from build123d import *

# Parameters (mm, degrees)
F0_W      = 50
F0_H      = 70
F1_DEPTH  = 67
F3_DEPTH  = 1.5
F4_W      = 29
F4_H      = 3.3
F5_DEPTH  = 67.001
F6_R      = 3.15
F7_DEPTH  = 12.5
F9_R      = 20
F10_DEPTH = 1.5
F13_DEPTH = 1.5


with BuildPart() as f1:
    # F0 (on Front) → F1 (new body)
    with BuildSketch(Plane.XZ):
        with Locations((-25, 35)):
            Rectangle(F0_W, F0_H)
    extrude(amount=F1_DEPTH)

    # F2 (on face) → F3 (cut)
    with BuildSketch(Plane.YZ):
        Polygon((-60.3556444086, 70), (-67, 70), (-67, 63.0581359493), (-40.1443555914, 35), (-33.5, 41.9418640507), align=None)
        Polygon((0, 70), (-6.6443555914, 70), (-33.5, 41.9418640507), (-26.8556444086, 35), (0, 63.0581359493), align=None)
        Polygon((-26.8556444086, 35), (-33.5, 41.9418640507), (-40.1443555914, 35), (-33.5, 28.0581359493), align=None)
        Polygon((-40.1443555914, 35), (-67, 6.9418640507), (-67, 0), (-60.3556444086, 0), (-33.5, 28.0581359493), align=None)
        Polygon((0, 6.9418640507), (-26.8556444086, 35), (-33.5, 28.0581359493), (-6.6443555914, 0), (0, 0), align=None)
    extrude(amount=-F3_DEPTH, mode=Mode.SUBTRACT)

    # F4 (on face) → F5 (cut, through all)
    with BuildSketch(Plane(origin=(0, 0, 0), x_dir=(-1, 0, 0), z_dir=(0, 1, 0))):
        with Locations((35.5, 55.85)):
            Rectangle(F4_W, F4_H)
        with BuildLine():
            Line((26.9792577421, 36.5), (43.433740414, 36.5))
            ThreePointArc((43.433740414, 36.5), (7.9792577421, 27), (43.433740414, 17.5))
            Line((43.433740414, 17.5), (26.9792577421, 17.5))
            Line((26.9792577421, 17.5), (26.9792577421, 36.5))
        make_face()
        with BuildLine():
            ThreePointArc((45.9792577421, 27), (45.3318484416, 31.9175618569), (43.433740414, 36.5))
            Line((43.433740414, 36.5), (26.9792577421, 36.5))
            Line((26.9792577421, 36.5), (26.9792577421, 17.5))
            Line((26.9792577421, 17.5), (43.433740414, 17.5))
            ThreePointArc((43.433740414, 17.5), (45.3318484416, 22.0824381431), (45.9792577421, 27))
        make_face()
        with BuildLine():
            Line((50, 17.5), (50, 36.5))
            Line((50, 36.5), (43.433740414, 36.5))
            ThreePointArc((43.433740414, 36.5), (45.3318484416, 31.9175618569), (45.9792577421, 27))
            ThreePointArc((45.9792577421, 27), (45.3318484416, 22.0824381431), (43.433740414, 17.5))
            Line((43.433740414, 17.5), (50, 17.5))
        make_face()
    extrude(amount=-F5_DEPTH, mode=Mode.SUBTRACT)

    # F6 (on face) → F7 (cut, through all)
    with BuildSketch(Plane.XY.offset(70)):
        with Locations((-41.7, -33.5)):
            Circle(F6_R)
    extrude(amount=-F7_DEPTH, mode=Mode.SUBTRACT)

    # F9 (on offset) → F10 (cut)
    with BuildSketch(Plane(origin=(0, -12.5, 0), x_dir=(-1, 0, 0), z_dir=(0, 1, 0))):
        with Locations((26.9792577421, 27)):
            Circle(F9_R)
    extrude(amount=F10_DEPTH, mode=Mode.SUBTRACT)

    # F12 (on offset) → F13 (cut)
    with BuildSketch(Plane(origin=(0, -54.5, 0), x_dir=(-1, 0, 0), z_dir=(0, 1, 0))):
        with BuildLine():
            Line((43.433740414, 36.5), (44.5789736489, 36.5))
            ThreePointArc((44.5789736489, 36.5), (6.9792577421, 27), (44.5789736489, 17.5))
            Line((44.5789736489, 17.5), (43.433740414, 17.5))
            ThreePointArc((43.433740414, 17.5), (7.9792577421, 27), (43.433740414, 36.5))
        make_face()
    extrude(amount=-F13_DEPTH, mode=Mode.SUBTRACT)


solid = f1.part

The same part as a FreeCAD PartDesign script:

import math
import FreeCAD as App
import Part
import Sketcher
from FreeCAD import Vector
Q = App.Units.Quantity

doc = App.newDocument("Part")
params = doc.addObject("Spreadsheet::Sheet", "Params")
for row, (alias, value) in enumerate([
    ("sketch1_width", "50 mm"),
    ("sketch1_height", "70 mm"),
    ("pad1_length", "67 mm"),
    ("pocket1_length", "1.5 mm"),
    ("sketch3_radius", "19 mm"),
    ("sketch3_width", "29 mm"),
    ("sketch3_height", "19 mm"),
    ("sketch3_height2", "3.3 mm"),
    ("sketch4_diameter", "6.3 mm"),
    ("pocket3_length", "12.5 mm"),
    ("sketch5_diameter", "40 mm"),
    ("pocket4_length", "1.5 mm"),
    ("sketch6_radius", "20 mm"),
    ("sketch6_radius2", "19 mm"),
    ("pocket5_length", "1.5 mm"),
], start=1):
    params.set(f"A{row}", alias)
    params.set(f"B{row}", "=" + value)
    params.setAlias(f"B{row}", alias)

body = doc.addObject("PartDesign::Body", "Body")

sketch1 = doc.addObject("Sketcher::SketchObject", "Sketch")
body.addObject(sketch1)
sketch1.AttachmentSupport = (doc.XZ_Plane, [""])
sketch1.MapMode = "FlatFace"
sketch1.addGeometry(Part.LineSegment(Vector(-50, 70, 0), Vector(-50, 0, 0)), False)
sketch1.addGeometry(Part.LineSegment(Vector(-50, 0, 0), Vector(0, 0, 0)), False)
sketch1.addGeometry(Part.LineSegment(Vector(0, 0, 0), Vector(0, 70, 0)), False)
sketch1.addGeometry(Part.LineSegment(Vector(0, 70, 0), Vector(-50, 70, 0)), False)
sketch1.addConstraint(Sketcher.Constraint("Coincident", 0, 2, 1, 1))
sketch1.addConstraint(Sketcher.Constraint("Coincident", 1, 2, 2, 1))
sketch1.addConstraint(Sketcher.Constraint("Coincident", 2, 2, 3, 1))
sketch1.addConstraint(Sketcher.Constraint("Coincident", 3, 2, 0, 1))
sketch1.addConstraint(Sketcher.Constraint("Vertical", 0))
sketch1.addConstraint(Sketcher.Constraint("Horizontal", 1))
sketch1.addConstraint(Sketcher.Constraint("Vertical", 2))
sketch1.addConstraint(Sketcher.Constraint("Horizontal", 3))
sketch1.addConstraint(Sketcher.Constraint("Coincident", 1, 2, -1, 1))
sketch1.addConstraint(Sketcher.Constraint("DistanceX", 1, 1, 1, 2, Q("50 mm")))
sketch1.addConstraint(Sketcher.Constraint("DistanceY", 0, 2, 0, 1, Q("70 mm")))
sketch1.setExpression("Constraints[9]", "Params.sketch1_width")
sketch1.setExpression("Constraints[10]", "Params.sketch1_height")
pad1 = doc.addObject("PartDesign::Pad", "Pad")
body.addObject(pad1)
pad1.Profile = sketch1
pad1.setExpression("Length", "Params.pad1_length")

sketch2 = doc.addObject("Sketcher::SketchObject", "Sketch001")
body.addObject(sketch2)
sketch2.AttachmentSupport = (doc.YZ_Plane, [""])
sketch2.MapMode = "FlatFace"
sketch2.addGeometry(Part.LineSegment(Vector(-60, 70, 0), Vector(-67, 70, 0)), False)
sketch2.addGeometry(Part.LineSegment(Vector(-67, 70, 0), Vector(-67, 63, 0)), False)
sketch2.addGeometry(Part.LineSegment(Vector(-67, 63, 0), Vector(-40, 35, 0)), False)
sketch2.addGeometry(Part.LineSegment(Vector(-40, 35, 0), Vector(-67, 7, 0)), False)
sketch2.addGeometry(Part.LineSegment(Vector(-67, 7, 0), Vector(-67, 0, 0)), False)
sketch2.addGeometry(Part.LineSegment(Vector(-67, 0, 0), Vector(-60, 0, 0)), False)
sketch2.addGeometry(Part.LineSegment(Vector(-60, 0, 0), Vector(-34, 28, 0)), False)
sketch2.addGeometry(Part.LineSegment(Vector(-34, 28, 0), Vector(-7, 0, 0)), False)
sketch2.addGeometry(Part.LineSegment(Vector(-7, 0, 0), Vector(0, 0, 0)), False)
sketch2.addGeometry(Part.LineSegment(Vector(0, 0, 0), Vector(0, 7, 0)), False)
sketch2.addGeometry(Part.LineSegment(Vector(0, 7, 0), Vector(-27, 35, 0)), False)
sketch2.addGeometry(Part.LineSegment(Vector(-27, 35, 0), Vector(0, 63, 0)), False)
sketch2.addGeometry(Part.LineSegment(Vector(0, 63, 0), Vector(0, 70, 0)), False)
sketch2.addGeometry(Part.LineSegment(Vector(0, 70, 0), Vector(-7, 70, 0)), False)
sketch2.addGeometry(Part.LineSegment(Vector(-7, 70, 0), Vector(-34, 42, 0)), False)
sketch2.addGeometry(Part.LineSegment(Vector(-34, 42, 0), Vector(-60, 70, 0)), False)
sketch2.addConstraint(Sketcher.Constraint("Coincident", 0, 2, 1, 1))
sketch2.addConstraint(Sketcher.Constraint("Coincident", 1, 2, 2, 1))
sketch2.addConstraint(Sketcher.Constraint("Coincident", 2, 2, 3, 1))
sketch2.addConstraint(Sketcher.Constraint("Coincident", 3, 2, 4, 1))
sketch2.addConstraint(Sketcher.Constraint("Coincident", 4, 2, 5, 1))
sketch2.addConstraint(Sketcher.Constraint("Coincident", 5, 2, 6, 1))
sketch2.addConstraint(Sketcher.Constraint("Coincident", 6, 2, 7, 1))
sketch2.addConstraint(Sketcher.Constraint("Coincident", 7, 2, 8, 1))
sketch2.addConstraint(Sketcher.Constraint("Coincident", 8, 2, 9, 1))
sketch2.addConstraint(Sketcher.Constraint("Coincident", 9, 2, 10, 1))
sketch2.addConstraint(Sketcher.Constraint("Coincident", 10, 2, 11, 1))
sketch2.addConstraint(Sketcher.Constraint("Coincident", 11, 2, 12, 1))
sketch2.addConstraint(Sketcher.Constraint("Coincident", 12, 2, 13, 1))
sketch2.addConstraint(Sketcher.Constraint("Coincident", 13, 2, 14, 1))
sketch2.addConstraint(Sketcher.Constraint("Coincident", 14, 2, 15, 1))
sketch2.addConstraint(Sketcher.Constraint("Coincident", 15, 2, 0, 1))
sketch2.addConstraint(Sketcher.Constraint("Horizontal", 0))
sketch2.addConstraint(Sketcher.Constraint("Vertical", 1))
sketch2.addConstraint(Sketcher.Constraint("Vertical", 4))
sketch2.addConstraint(Sketcher.Constraint("Horizontal", 5))
sketch2.addConstraint(Sketcher.Constraint("Horizontal", 8))
sketch2.addConstraint(Sketcher.Constraint("Vertical", 9))
sketch2.addConstraint(Sketcher.Constraint("Vertical", 12))
sketch2.addConstraint(Sketcher.Constraint("Horizontal", 13))
sketch2.addConstraint(Sketcher.Constraint("Coincident", 8, 2, -1, 1))
sketch2.addConstraint(Sketcher.Constraint("PointOnObject", 4, 2, -1))
sketch2.addConstraint(Sketcher.Constraint("PointOnObject", 11, 2, -2))
sketch2.addConstraint(Sketcher.Constraint("Parallel", 3, 6))
sketch2.addConstraint(Sketcher.Constraint("Parallel", 2, 7))
sketch2.addConstraint(Sketcher.Constraint("Parallel", 7, 10))
sketch2.addConstraint(Sketcher.Constraint("Parallel", 6, 11))
sketch2.addConstraint(Sketcher.Constraint("Parallel", 11, 14))
sketch2.addConstraint(Sketcher.Constraint("Parallel", 10, 15))
sketch2.addConstraint(Sketcher.Constraint("Horizontal", 3, 2, 9, 2))
sketch2.addConstraint(Sketcher.Constraint("Horizontal", 2, 2, 10, 2))
sketch2.addConstraint(Sketcher.Constraint("Horizontal", 1, 2, 11, 2))
sketch2.addConstraint(Sketcher.Constraint("Horizontal", 0, 2, 12, 2))
sketch2.addConstraint(Sketcher.Constraint("Vertical", 1, 2, 3, 2))
sketch2.addConstraint(Sketcher.Constraint("Vertical", 7, 2, 13, 2))
sketch2.addConstraint(Sketcher.Constraint("Vertical", 6, 2, 14, 2))
sketch2.addConstraint(Sketcher.Constraint("Equal", 5, 8))
sketch2.addConstraint(Sketcher.Constraint("Equal", 1, 4))
sketch2.addConstraint(Sketcher.Constraint("Equal", 3, 6))
sketch2.addConstraint(Sketcher.Constraint("DistanceX", 0, 2, -1, 1, Q("67 mm")))
sketch2.addConstraint(Sketcher.Constraint("DistanceY", -1, 1, 0, 2, Q("70 mm")))
sketch2.addConstraint(Sketcher.Constraint("DistanceX", 0, 2, 0, 1, Q("6.644356 mm")))
sketch2.addConstraint(Sketcher.Constraint("DistanceY", 1, 2, 1, 1, Q("6.941864 mm")))
pocket1 = doc.addObject("PartDesign::Pocket", "Pocket")
body.addObject(pocket1)
pocket1.Profile = sketch2
pocket1.setExpression("Length", "Params.pocket1_length")

sketch3 = doc.addObject("Sketcher::SketchObject", "Sketch002")
body.addObject(sketch3)
sketch3.AttachmentSupport = (doc.XZ_Plane, [""])
sketch3.MapMode = "FlatFace"
sketch3.addGeometry(Part.LineSegment(Vector(-21, 57.5, 0), Vector(-21, 54.2, 0)), False)
sketch3.addGeometry(Part.LineSegment(Vector(-21, 54.2, 0), Vector(-50, 54.2, 0)), False)
sketch3.addGeometry(Part.LineSegment(Vector(-50, 54.2, 0), Vector(-50, 57.5, 0)), False)
sketch3.addGeometry(Part.LineSegment(Vector(-50, 57.5, 0), Vector(-21, 57.5, 0)), False)
sketch3.addGeometry(Part.ArcOfCircle(Part.Circle(Vector(-27, 27, 0), Vector(0, 0, 1), 19), math.radians(-150), math.radians(150)), False)
sketch3.addGeometry(Part.LineSegment(Vector(-43.4, 17.5, 0), Vector(-50, 17.5, 0)), False)
sketch3.addGeometry(Part.LineSegment(Vector(-50, 17.5, 0), Vector(-50, 36.5, 0)), False)
sketch3.addGeometry(Part.LineSegment(Vector(-50, 36.5, 0), Vector(-43.4, 36.5, 0)), False)
sketch3.addConstraint(Sketcher.Constraint("Coincident", 0, 2, 1, 1))
sketch3.addConstraint(Sketcher.Constraint("Coincident", 1, 2, 2, 1))
sketch3.addConstraint(Sketcher.Constraint("Coincident", 2, 2, 3, 1))
sketch3.addConstraint(Sketcher.Constraint("Coincident", 3, 2, 0, 1))
sketch3.addConstraint(Sketcher.Constraint("Coincident", 4, 1, 5, 1))
sketch3.addConstraint(Sketcher.Constraint("Coincident", 5, 2, 6, 1))
sketch3.addConstraint(Sketcher.Constraint("Coincident", 6, 2, 7, 1))
sketch3.addConstraint(Sketcher.Constraint("Coincident", 7, 2, 4, 2))
sketch3.addConstraint(Sketcher.Constraint("Vertical", 0))
sketch3.addConstraint(Sketcher.Constraint("Horizontal", 1))
sketch3.addConstraint(Sketcher.Constraint("Vertical", 2))
sketch3.addConstraint(Sketcher.Constraint("Horizontal", 3))
sketch3.addConstraint(Sketcher.Constraint("Horizontal", 5))
sketch3.addConstraint(Sketcher.Constraint("Vertical", 6))
sketch3.addConstraint(Sketcher.Constraint("Horizontal", 7))
sketch3.addConstraint(Sketcher.Constraint("Vertical", 2, 2, 5, 2))
sketch3.addConstraint(Sketcher.Constraint("Vertical", 4, 1, 7, 2))
sketch3.addConstraint(Sketcher.Constraint("Radius", 4, Q("19 mm")))
sketch3.addConstraint(Sketcher.Constraint("DistanceX", 1, 2, 1, 1, Q("29 mm")))
sketch3.addConstraint(Sketcher.Constraint("DistanceY", 6, 1, 6, 2, Q("19 mm")))
sketch3.addConstraint(Sketcher.Constraint("DistanceY", 0, 2, 0, 1, Q("3.3 mm")))
sketch3.addConstraint(Sketcher.Constraint("DistanceY", -1, 1, 4, 3, Q("27 mm")))
sketch3.addConstraint(Sketcher.Constraint("DistanceX", 0, 2, -1, 1, Q("21 mm")))
sketch3.addConstraint(Sketcher.Constraint("DistanceY", 4, 1, 2, 2, Q("40 mm")))
sketch3.addConstraint(Sketcher.Constraint("DistanceX", 5, 2, 5, 1, Q("6.56626 mm")))
sketch3.setExpression("Constraints[17]", "Params.sketch3_radius")
sketch3.setExpression("Constraints[18]", "Params.sketch3_width")
sketch3.setExpression("Constraints[19]", "Params.sketch3_height")
sketch3.setExpression("Constraints[20]", "Params.sketch3_height2")
pocket2 = doc.addObject("PartDesign::Pocket", "Pocket001")
body.addObject(pocket2)
pocket2.Profile = sketch3
pocket2.Type = "ThroughAll"
pocket2.Reversed = True

sketch4 = doc.addObject("Sketcher::SketchObject", "Sketch003")
body.addObject(sketch4)
sketch4.AttachmentSupport = (doc.XY_Plane, [""])
sketch4.MapMode = "FlatFace"
sketch4.AttachmentOffset = App.Placement(Vector(0, 0, 70), App.Rotation())
sketch4.addGeometry(Part.Circle(Vector(-41.7, -33.5, 0), Vector(0, 0, 1), 3.1), False)
sketch4.addConstraint(Sketcher.Constraint("Diameter", 0, Q("6.3 mm")))
sketch4.addConstraint(Sketcher.Constraint("DistanceX", 0, 3, -1, 1, Q("41.7 mm")))
sketch4.addConstraint(Sketcher.Constraint("DistanceY", 0, 3, -1, 1, Q("33.5 mm")))
sketch4.setExpression("Constraints[0]", "Params.sketch4_diameter")
pocket3 = doc.addObject("PartDesign::Pocket", "Pocket002")
body.addObject(pocket3)
pocket3.Profile = sketch4
pocket3.setExpression("Length", "Params.pocket3_length")

sketch5 = doc.addObject("Sketcher::SketchObject", "Sketch004")
body.addObject(sketch5)
sketch5.AttachmentSupport = (doc.XZ_Plane, [""])
sketch5.MapMode = "FlatFace"
sketch5.AttachmentOffset = App.Placement(Vector(0, 0, 12.5), App.Rotation())
sketch5.addGeometry(Part.Circle(Vector(-27, 27, 0), Vector(0, 0, 1), 20), False)
sketch5.addConstraint(Sketcher.Constraint("Diameter", 0, Q("40 mm")))
sketch5.addConstraint(Sketcher.Constraint("DistanceY", -1, 1, 0, 3, Q("27 mm")))
sketch5.addConstraint(Sketcher.Constraint("DistanceX", 0, 3, -1, 1, Q("26.979258 mm")))
sketch5.setExpression("Constraints[0]", "Params.sketch5_diameter")
pocket4 = doc.addObject("PartDesign::Pocket", "Pocket003")
body.addObject(pocket4)
pocket4.Profile = sketch5
pocket4.setExpression("Length", "Params.pocket4_length")

sketch6 = doc.addObject("Sketcher::SketchObject", "Sketch005")
body.addObject(sketch6)
sketch6.AttachmentSupport = (doc.XZ_Plane, [""])
sketch6.MapMode = "FlatFace"
sketch6.AttachmentOffset = App.Placement(Vector(0, 0, 54.5), App.Rotation())
sketch6.addGeometry(Part.LineSegment(Vector(-43.4, 36.5, 0), Vector(-44.6, 36.5, 0)), False)
sketch6.addGeometry(Part.ArcOfCircle(Part.Circle(Vector(-27, 27, 0), Vector(0, 0, 1), 20), math.radians(-152), math.radians(152)), False)
sketch6.addGeometry(Part.LineSegment(Vector(-44.6, 17.5, 0), Vector(-43.4, 17.5, 0)), False)
sketch6.addGeometry(Part.ArcOfCircle(Part.Circle(Vector(-27, 27, 0), Vector(0, 0, 1), 19), math.radians(-150), math.radians(150)), False)
sketch6.addConstraint(Sketcher.Constraint("Coincident", 0, 2, 1, 2))
sketch6.addConstraint(Sketcher.Constraint("Coincident", 1, 1, 2, 1))
sketch6.addConstraint(Sketcher.Constraint("Coincident", 2, 2, 3, 1))
sketch6.addConstraint(Sketcher.Constraint("Coincident", 3, 2, 0, 1))
sketch6.addConstraint(Sketcher.Constraint("Horizontal", 0))
sketch6.addConstraint(Sketcher.Constraint("Horizontal", 2))
sketch6.addConstraint(Sketcher.Constraint("Coincident", 3, 3, 1, 3))
sketch6.addConstraint(Sketcher.Constraint("Vertical", 0, 2, 1, 1))
sketch6.addConstraint(Sketcher.Constraint("Radius", 1, Q("20 mm")))
sketch6.addConstraint(Sketcher.Constraint("Radius", 3, Q("19 mm")))
sketch6.addConstraint(Sketcher.Constraint("DistanceY", -1, 1, 1, 3, Q("27 mm")))
sketch6.addConstraint(Sketcher.Constraint("DistanceY", 1, 1, 0, 2, Q("19 mm")))
sketch6.addConstraint(Sketcher.Constraint("DistanceX", 2, 2, -1, 1, Q("43.43374 mm")))
sketch6.setExpression("Constraints[8]", "Params.sketch6_radius")
sketch6.setExpression("Constraints[9]", "Params.sketch6_radius2")
pocket5 = doc.addObject("PartDesign::Pocket", "Pocket004")
body.addObject(pocket5)
pocket5.Profile = sketch6
pocket5.setExpression("Length", "Params.pocket5_length")
pocket5.Reversed = True

doc.recompute()
